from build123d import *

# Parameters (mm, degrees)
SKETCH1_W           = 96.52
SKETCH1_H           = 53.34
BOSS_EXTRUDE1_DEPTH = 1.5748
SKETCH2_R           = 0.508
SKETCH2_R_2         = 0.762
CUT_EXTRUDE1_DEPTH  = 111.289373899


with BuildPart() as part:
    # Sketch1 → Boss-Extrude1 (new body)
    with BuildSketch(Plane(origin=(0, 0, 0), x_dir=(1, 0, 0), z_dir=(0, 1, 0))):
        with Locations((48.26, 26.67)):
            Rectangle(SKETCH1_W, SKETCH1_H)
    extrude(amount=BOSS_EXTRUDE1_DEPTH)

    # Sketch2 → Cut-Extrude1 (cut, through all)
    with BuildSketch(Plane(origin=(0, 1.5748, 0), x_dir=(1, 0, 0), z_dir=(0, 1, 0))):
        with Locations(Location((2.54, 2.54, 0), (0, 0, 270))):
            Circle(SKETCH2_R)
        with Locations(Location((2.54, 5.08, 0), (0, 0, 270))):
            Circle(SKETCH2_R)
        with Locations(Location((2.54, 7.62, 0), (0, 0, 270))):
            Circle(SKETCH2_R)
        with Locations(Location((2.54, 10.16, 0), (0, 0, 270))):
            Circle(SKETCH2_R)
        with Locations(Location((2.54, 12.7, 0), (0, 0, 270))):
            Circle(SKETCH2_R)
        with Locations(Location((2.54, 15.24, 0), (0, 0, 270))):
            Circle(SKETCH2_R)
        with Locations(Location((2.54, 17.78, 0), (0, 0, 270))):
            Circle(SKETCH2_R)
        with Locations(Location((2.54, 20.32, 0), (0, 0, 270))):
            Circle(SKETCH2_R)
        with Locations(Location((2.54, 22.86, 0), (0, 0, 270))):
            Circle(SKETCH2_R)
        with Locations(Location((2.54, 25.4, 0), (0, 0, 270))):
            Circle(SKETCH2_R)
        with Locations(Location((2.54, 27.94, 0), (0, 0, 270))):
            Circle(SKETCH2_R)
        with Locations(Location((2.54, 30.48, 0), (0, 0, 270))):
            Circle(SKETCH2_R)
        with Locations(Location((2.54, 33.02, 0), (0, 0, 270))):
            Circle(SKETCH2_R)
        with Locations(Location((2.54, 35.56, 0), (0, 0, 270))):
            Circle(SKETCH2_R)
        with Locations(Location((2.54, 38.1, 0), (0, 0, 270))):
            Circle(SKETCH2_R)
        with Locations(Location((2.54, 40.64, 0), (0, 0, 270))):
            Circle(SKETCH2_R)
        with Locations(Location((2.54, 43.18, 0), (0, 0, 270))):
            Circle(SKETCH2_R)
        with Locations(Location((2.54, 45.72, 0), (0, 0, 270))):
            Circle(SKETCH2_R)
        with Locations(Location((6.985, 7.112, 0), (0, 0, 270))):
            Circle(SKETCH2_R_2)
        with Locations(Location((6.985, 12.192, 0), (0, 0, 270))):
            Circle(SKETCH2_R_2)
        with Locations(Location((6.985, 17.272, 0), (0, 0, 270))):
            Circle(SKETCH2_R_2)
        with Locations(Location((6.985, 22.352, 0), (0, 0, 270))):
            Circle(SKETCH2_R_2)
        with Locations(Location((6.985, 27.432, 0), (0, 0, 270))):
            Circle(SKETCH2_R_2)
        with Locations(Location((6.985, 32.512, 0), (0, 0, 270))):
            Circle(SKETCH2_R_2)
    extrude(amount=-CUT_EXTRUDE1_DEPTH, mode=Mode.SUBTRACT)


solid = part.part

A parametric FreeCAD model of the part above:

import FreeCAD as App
import Part
import Sketcher
from FreeCAD import Vector
Q = App.Units.Quantity

doc = App.newDocument("Part")
body = doc.addObject("PartDesign::Body", "Body")

# Sketch on XZ plane
sketch1 = body.newObject("Sketcher::SketchObject", "Sketch")
sketch1.AttachmentSupport = (doc.getObject("XZ_Plane"), [""])
sketch1.MapMode = "FlatFace"
sketch1.addGeometry(Part.LineSegment(Vector(0, -53.34, 0), Vector(0, 0, 0)), False)
sketch1.addGeometry(Part.LineSegment(Vector(0, 0, 0), Vector(96.52, 0, 0)), False)
sketch1.addGeometry(Part.LineSegment(Vector(96.52, 0, 0), Vector(96.52, -53.34, 0)), False)
sketch1.addGeometry(Part.LineSegment(Vector(96.52, -53.34, 0), Vector(0, -53.34, 0)), False)
sketch1.addConstraint(Sketcher.Constraint("Coincident", 0, 2, 1, 1))
sketch1.addConstraint(Sketcher.Constraint("Coincident", 1, 2, 2, 1))
sketch1.addConstraint(Sketcher.Constraint("Coincident", 2, 2, 3, 1))
sketch1.addConstraint(Sketcher.Constraint("Coincident", 3, 2, 0, 1))
sketch1.addConstraint(Sketcher.Constraint("Vertical", 0))
sketch1.addConstraint(Sketcher.Constraint("Horizontal", 1))
sketch1.addConstraint(Sketcher.Constraint("Vertical", 2))
sketch1.addConstraint(Sketcher.Constraint("Horizontal", 3))
sketch1.addConstraint(Sketcher.Constraint("Coincident", 0, 2, -1, 1))
sketch1.addConstraint(Sketcher.Constraint("DistanceX", 1, 1, 1, 2, Q("3.8 in")))
sketch1.addConstraint(Sketcher.Constraint("DistanceY", 0, 1, 0, 2, Q("2.1 in")))
pad1 = body.newObject("PartDesign::Pad", "Pad")
pad1.Profile = sketch1
pad1.Length = Q("0.062 in")
pad1.Reversed = True

# Sketch on XZ plane
sketch2 = body.newObject("Sketcher::SketchObject", "Sketch001")
sketch2.AttachmentSupport = (doc.getObject("XZ_Plane"), [""])
sketch2.MapMode = "FlatFace"
sketch2.AttachmentOffset = App.Placement(Vector(0, 0, -0.062 * 25.4), App.Rotation())
sketch2.addGeometry(Part.Circle(Vector(2.54, -2.54, 0), Vector(0, 0, 1), 0.508), False)
sketch2.addGeometry(Part.Circle(Vector(2.54, -5.08, 0), Vector(0, 0, 1), 0.508), False)
sketch2.addGeometry(Part.Circle(Vector(2.54, -7.62, 0), Vector(0, 0, 1), 0.508), False)
sketch2.addGeometry(Part.Circle(Vector(2.54, -10.16, 0), Vector(0, 0, 1), 0.508), False)
sketch2.addGeometry(Part.Circle(Vector(2.54, -12.7, 0), Vector(0, 0, 1), 0.508), False)
sketch2.addGeometry(Part.Circle(Vector(2.54, -15.24, 0), Vector(0, 0, 1), 0.508), False)
sketch2.addGeometry(Part.Circle(Vector(2.54, -17.78, 0), Vector(0, 0, 1), 0.508), False)
sketch2.addGeometry(Part.Circle(Vector(2.54, -20.32, 0), Vector(0, 0, 1), 0.508), False)
sketch2.addGeometry(Part.Circle(Vector(2.54, -22.86, 0), Vector(0, 0, 1), 0.508), False)
sketch2.addGeometry(Part.Circle(Vector(2.54, -25.4, 0), Vector(0, 0, 1), 0.508), False)
sketch2.addGeometry(Part.Circle(Vector(2.54, -27.94, 0), Vector(0, 0, 1), 0.508), False)
sketch2.addGeometry(Part.Circle(Vector(2.54, -30.48, 0), Vector(0, 0, 1), 0.508), False)
sketch2.addGeometry(Part.Circle(Vector(2.54, -33.02, 0), Vector(0, 0, 1), 0.508), False)
sketch2.addGeometry(Part.Circle(Vector(2.54, -35.56, 0), Vector(0, 0, 1), 0.508), False)
sketch2.addGeometry(Part.Circle(Vector(2.54, -38.1, 0), Vector(0, 0, 1), 0.508), False)
sketch2.addGeometry(Part.Circle(Vector(2.54, -40.64, 0), Vector(0, 0, 1), 0.508), False)
sketch2.addGeometry(Part.Circle(Vector(2.54, -43.18, 0), Vector(0, 0, 1), 0.508), False)
sketch2.addGeometry(Part.Circle(Vector(2.54, -45.72, 0), Vector(0, 0, 1), 0.508), False)
sketch2.addGeometry(Part.Circle(Vector(6.985, -7.112, 0), Vector(0, 0, 1), 0.762), False)
sketch2.addGeometry(Part.Circle(Vector(6.985, -12.192, 0), Vector(0, 0, 1), 0.762), False)
sketch2.addGeometry(Part.Circle(Vector(6.985, -17.272, 0), Vector(0, 0, 1), 0.762), False)
sketch2.addGeometry(Part.Circle(Vector(6.985, -22.352, 0), Vector(0, 0, 1), 0.762), False)
sketch2.addGeometry(Part.Circle(Vector(6.985, -27.432, 0), Vector(0, 0, 1), 0.762), False)
sketch2.addGeometry(Part.Circle(Vector(6.985, -32.512, 0), Vector(0, 0, 1), 0.762), False)
sketch2.addConstraint(Sketcher.Constraint("Equal", 0, 1))
sketch2.addConstraint(Sketcher.Constraint("Equal", 1, 2))
sketch2.addConstraint(Sketcher.Constraint("Equal", 2, 3))
sketch2.addConstraint(Sketcher.Constraint("Equal", 3, 4))
sketch2.addConstraint(Sketcher.Constraint("Equal", 4, 5))
sketch2.addConstraint(Sketcher.Constraint("Equal", 5, 6))
sketch2.addConstraint(Sketcher.Constraint("Equal", 6, 7))
sketch2.addConstraint(Sketcher.Constraint("Equal", 7, 8))
sketch2.addConstraint(Sketcher.Constraint("Equal", 8, 9))
sketch2.addConstraint(Sketcher.Constraint("Equal", 9, 10))
sketch2.addConstraint(Sketcher.Constraint("Equal", 10, 11))
sketch2.addConstraint(Sketcher.Constraint("Equal", 11, 12))
sketch2.addConstraint(Sketcher.Constraint("Equal", 12, 13))
sketch2.addConstraint(Sketcher.Constraint("Equal", 13, 14))
sketch2.addConstraint(Sketcher.Constraint("Equal", 14, 15))
sketch2.addConstraint(Sketcher.Constraint("Equal", 15, 16))
sketch2.addConstraint(Sketcher.Constraint("Equal", 16, 17))
sketch2.addConstraint(Sketcher.Constraint("Equal", 18, 19))
sketch2.addConstraint(Sketcher.Constraint("Equal", 19, 20))
sketch2.addConstraint(Sketcher.Constraint("Equal", 20, 21))
sketch2.addConstraint(Sketcher.Constraint("Equal", 21, 22))
sketch2.addConstraint(Sketcher.Constraint("Equal", 22, 23))
sketch2.addConstraint(Sketcher.Constraint("Vertical", 0, 3, 1, 3))
sketch2.addConstraint(Sketcher.Constraint("Vertical", 1, 3, 2, 3))
sketch2.addConstraint(Sketcher.Constraint("Vertical", 2, 3, 3, 3))
sketch2.addConstraint(Sketcher.Constraint("Vertical", 3, 3, 4, 3))
sketch2.addConstraint(Sketcher.Constraint("Vertical", 4, 3, 5, 3))
sketch2.addConstraint(Sketcher.Constraint("Vertical", 5, 3, 6, 3))
sketch2.addConstraint(Sketcher.Constraint("Vertical", 6, 3, 7, 3))
sketch2.addConstraint(Sketcher.Constraint("Vertical", 7, 3, 8, 3))
sketch2.addConstraint(Sketcher.Constraint("Vertical", 8, 3, 9, 3))
sketch2.addConstraint(Sketcher.Constraint("Vertical", 9, 3, 10, 3))
sketch2.addConstraint(Sketcher.Constraint("Vertical", 10, 3, 11, 3))
sketch2.addConstraint(Sketcher.Constraint("Vertical", 11, 3, 12, 3))
sketch2.addConstraint(Sketcher.Constraint("Vertical", 12, 3, 13, 3))
sketch2.addConstraint(Sketcher.Constraint("Vertical", 13, 3, 14, 3))
sketch2.addConstraint(Sketcher.Constraint("Vertical", 14, 3, 15, 3))
sketch2.addConstraint(Sketcher.Constraint("Vertical", 15, 3, 16, 3))
sketch2.addConstraint(Sketcher.Constraint("Vertical", 16, 3, 17, 3))
sketch2.addConstraint(Sketcher.Constraint("Vertical", 18, 3, 19, 3))
sketch2.addConstraint(Sketcher.Constraint("Vertical", 19, 3, 20, 3))
sketch2.addConstraint(Sketcher.Constraint("Vertical", 20, 3, 21, 3))
sketch2.addConstraint(Sketcher.Constraint("Vertical", 21, 3, 22, 3))
sketch2.addConstraint(Sketcher.Constraint("Vertical", 22, 3, 23, 3))
sketch2.addConstraint(Sketcher.Constraint("Diameter", 0, Q("0.04 in")))
sketch2.addConstraint(Sketcher.Constraint("Diameter", 18, Q("0.06 in")))
sketch2.addConstraint(Sketcher.Constraint("DistanceY", 9, 3, -1, 1, Q("1 in")))
sketch2.addConstraint(Sketcher.Constraint("DistanceX", -1, 1, 0, 3, Q("0.1 in")))
sketch2.addConstraint(Sketcher.Constraint("DistanceY", 0, 3, -1, 1, Q("0.1 in")))
sketch2.addConstraint(Sketcher.Constraint("DistanceY", 1, 3, -1, 1, Q("0.2 in")))
sketch2.addConstraint(Sketcher.Constraint("DistanceY", 2, 3, -1, 1, Q("0.3 in")))
sketch2.addConstraint(Sketcher.Constraint("DistanceY", 3, 3, -1, 1, Q("0.4 in")))
sketch2.addConstraint(Sketcher.Constraint("DistanceY", 4, 3, -1, 1, Q("0.5 in")))
sketch2.addConstraint(Sketcher.Constraint("DistanceY", 5, 3, -1, 1, Q("0.6 in")))
sketch2.addConstraint(Sketcher.Constraint("DistanceY", 6, 3, -1, 1, Q("0.7 in")))
sketch2.addConstraint(Sketcher.Constraint("DistanceY", 7, 3, -1, 1, Q("0.8 in")))
sketch2.addConstraint(Sketcher.Constraint("DistanceY", 8, 3, -1, 1, Q("0.9 in")))
sketch2.addConstraint(Sketcher.Constraint("DistanceY", 10, 3, -1, 1, Q("1.1 in")))
sketch2.addConstraint(Sketcher.Constraint("DistanceY", 11, 3, -1, 1, Q("1.2 in")))
sketch2.addConstraint(Sketcher.Constraint("DistanceY", 12, 3, -1, 1, Q("1.3 in")))
sketch2.addConstraint(Sketcher.Constraint("DistanceY", 13, 3, -1, 1, Q("1.4 in")))
sketch2.addConstraint(Sketcher.Constraint("DistanceY", 14, 3, -1, 1, Q("1.5 in")))
sketch2.addConstraint(Sketcher.Constraint("DistanceY", 15, 3, -1, 1, Q("1.6 in")))
sketch2.addConstraint(Sketcher.Constraint("DistanceY", 16, 3, -1, 1, Q("1.7 in")))
sketch2.addConstraint(Sketcher.Constraint("DistanceY", 17, 3, -1, 1, Q("1.8 in")))
sketch2.addConstraint(Sketcher.Constraint("DistanceY", 19, 3, 18, 3, Q("0.2 in")))
sketch2.addConstraint(Sketcher.Constraint("DistanceY", 20, 3, 19, 3, Q("0.2 in")))
sketch2.addConstraint(Sketcher.Constraint("DistanceY", 21, 3, 20, 3, Q("0.2 in")))
sketch2.addConstraint(Sketcher.Constraint("DistanceY", 22, 3, 21, 3, Q("0.2 in")))
sketch2.addConstraint(Sketcher.Constraint("DistanceY", 23, 3, 22, 3, Q("0.2 in")))
sketch2.addConstraint(Sketcher.Constraint("DistanceY", 18, 3, -1, 1, Q("0.28 in")))
sketch2.addConstraint(Sketcher.Constraint("DistanceX", -1, 1, 18, 3, Q("0.275 in")))
pocket1 = body.newObject("PartDesign::Pocket", "Pocket")
pocket1.Profile = sketch2
pocket1.Type = "ThroughAll"
pocket1.Reversed = True

doc.recompute()
